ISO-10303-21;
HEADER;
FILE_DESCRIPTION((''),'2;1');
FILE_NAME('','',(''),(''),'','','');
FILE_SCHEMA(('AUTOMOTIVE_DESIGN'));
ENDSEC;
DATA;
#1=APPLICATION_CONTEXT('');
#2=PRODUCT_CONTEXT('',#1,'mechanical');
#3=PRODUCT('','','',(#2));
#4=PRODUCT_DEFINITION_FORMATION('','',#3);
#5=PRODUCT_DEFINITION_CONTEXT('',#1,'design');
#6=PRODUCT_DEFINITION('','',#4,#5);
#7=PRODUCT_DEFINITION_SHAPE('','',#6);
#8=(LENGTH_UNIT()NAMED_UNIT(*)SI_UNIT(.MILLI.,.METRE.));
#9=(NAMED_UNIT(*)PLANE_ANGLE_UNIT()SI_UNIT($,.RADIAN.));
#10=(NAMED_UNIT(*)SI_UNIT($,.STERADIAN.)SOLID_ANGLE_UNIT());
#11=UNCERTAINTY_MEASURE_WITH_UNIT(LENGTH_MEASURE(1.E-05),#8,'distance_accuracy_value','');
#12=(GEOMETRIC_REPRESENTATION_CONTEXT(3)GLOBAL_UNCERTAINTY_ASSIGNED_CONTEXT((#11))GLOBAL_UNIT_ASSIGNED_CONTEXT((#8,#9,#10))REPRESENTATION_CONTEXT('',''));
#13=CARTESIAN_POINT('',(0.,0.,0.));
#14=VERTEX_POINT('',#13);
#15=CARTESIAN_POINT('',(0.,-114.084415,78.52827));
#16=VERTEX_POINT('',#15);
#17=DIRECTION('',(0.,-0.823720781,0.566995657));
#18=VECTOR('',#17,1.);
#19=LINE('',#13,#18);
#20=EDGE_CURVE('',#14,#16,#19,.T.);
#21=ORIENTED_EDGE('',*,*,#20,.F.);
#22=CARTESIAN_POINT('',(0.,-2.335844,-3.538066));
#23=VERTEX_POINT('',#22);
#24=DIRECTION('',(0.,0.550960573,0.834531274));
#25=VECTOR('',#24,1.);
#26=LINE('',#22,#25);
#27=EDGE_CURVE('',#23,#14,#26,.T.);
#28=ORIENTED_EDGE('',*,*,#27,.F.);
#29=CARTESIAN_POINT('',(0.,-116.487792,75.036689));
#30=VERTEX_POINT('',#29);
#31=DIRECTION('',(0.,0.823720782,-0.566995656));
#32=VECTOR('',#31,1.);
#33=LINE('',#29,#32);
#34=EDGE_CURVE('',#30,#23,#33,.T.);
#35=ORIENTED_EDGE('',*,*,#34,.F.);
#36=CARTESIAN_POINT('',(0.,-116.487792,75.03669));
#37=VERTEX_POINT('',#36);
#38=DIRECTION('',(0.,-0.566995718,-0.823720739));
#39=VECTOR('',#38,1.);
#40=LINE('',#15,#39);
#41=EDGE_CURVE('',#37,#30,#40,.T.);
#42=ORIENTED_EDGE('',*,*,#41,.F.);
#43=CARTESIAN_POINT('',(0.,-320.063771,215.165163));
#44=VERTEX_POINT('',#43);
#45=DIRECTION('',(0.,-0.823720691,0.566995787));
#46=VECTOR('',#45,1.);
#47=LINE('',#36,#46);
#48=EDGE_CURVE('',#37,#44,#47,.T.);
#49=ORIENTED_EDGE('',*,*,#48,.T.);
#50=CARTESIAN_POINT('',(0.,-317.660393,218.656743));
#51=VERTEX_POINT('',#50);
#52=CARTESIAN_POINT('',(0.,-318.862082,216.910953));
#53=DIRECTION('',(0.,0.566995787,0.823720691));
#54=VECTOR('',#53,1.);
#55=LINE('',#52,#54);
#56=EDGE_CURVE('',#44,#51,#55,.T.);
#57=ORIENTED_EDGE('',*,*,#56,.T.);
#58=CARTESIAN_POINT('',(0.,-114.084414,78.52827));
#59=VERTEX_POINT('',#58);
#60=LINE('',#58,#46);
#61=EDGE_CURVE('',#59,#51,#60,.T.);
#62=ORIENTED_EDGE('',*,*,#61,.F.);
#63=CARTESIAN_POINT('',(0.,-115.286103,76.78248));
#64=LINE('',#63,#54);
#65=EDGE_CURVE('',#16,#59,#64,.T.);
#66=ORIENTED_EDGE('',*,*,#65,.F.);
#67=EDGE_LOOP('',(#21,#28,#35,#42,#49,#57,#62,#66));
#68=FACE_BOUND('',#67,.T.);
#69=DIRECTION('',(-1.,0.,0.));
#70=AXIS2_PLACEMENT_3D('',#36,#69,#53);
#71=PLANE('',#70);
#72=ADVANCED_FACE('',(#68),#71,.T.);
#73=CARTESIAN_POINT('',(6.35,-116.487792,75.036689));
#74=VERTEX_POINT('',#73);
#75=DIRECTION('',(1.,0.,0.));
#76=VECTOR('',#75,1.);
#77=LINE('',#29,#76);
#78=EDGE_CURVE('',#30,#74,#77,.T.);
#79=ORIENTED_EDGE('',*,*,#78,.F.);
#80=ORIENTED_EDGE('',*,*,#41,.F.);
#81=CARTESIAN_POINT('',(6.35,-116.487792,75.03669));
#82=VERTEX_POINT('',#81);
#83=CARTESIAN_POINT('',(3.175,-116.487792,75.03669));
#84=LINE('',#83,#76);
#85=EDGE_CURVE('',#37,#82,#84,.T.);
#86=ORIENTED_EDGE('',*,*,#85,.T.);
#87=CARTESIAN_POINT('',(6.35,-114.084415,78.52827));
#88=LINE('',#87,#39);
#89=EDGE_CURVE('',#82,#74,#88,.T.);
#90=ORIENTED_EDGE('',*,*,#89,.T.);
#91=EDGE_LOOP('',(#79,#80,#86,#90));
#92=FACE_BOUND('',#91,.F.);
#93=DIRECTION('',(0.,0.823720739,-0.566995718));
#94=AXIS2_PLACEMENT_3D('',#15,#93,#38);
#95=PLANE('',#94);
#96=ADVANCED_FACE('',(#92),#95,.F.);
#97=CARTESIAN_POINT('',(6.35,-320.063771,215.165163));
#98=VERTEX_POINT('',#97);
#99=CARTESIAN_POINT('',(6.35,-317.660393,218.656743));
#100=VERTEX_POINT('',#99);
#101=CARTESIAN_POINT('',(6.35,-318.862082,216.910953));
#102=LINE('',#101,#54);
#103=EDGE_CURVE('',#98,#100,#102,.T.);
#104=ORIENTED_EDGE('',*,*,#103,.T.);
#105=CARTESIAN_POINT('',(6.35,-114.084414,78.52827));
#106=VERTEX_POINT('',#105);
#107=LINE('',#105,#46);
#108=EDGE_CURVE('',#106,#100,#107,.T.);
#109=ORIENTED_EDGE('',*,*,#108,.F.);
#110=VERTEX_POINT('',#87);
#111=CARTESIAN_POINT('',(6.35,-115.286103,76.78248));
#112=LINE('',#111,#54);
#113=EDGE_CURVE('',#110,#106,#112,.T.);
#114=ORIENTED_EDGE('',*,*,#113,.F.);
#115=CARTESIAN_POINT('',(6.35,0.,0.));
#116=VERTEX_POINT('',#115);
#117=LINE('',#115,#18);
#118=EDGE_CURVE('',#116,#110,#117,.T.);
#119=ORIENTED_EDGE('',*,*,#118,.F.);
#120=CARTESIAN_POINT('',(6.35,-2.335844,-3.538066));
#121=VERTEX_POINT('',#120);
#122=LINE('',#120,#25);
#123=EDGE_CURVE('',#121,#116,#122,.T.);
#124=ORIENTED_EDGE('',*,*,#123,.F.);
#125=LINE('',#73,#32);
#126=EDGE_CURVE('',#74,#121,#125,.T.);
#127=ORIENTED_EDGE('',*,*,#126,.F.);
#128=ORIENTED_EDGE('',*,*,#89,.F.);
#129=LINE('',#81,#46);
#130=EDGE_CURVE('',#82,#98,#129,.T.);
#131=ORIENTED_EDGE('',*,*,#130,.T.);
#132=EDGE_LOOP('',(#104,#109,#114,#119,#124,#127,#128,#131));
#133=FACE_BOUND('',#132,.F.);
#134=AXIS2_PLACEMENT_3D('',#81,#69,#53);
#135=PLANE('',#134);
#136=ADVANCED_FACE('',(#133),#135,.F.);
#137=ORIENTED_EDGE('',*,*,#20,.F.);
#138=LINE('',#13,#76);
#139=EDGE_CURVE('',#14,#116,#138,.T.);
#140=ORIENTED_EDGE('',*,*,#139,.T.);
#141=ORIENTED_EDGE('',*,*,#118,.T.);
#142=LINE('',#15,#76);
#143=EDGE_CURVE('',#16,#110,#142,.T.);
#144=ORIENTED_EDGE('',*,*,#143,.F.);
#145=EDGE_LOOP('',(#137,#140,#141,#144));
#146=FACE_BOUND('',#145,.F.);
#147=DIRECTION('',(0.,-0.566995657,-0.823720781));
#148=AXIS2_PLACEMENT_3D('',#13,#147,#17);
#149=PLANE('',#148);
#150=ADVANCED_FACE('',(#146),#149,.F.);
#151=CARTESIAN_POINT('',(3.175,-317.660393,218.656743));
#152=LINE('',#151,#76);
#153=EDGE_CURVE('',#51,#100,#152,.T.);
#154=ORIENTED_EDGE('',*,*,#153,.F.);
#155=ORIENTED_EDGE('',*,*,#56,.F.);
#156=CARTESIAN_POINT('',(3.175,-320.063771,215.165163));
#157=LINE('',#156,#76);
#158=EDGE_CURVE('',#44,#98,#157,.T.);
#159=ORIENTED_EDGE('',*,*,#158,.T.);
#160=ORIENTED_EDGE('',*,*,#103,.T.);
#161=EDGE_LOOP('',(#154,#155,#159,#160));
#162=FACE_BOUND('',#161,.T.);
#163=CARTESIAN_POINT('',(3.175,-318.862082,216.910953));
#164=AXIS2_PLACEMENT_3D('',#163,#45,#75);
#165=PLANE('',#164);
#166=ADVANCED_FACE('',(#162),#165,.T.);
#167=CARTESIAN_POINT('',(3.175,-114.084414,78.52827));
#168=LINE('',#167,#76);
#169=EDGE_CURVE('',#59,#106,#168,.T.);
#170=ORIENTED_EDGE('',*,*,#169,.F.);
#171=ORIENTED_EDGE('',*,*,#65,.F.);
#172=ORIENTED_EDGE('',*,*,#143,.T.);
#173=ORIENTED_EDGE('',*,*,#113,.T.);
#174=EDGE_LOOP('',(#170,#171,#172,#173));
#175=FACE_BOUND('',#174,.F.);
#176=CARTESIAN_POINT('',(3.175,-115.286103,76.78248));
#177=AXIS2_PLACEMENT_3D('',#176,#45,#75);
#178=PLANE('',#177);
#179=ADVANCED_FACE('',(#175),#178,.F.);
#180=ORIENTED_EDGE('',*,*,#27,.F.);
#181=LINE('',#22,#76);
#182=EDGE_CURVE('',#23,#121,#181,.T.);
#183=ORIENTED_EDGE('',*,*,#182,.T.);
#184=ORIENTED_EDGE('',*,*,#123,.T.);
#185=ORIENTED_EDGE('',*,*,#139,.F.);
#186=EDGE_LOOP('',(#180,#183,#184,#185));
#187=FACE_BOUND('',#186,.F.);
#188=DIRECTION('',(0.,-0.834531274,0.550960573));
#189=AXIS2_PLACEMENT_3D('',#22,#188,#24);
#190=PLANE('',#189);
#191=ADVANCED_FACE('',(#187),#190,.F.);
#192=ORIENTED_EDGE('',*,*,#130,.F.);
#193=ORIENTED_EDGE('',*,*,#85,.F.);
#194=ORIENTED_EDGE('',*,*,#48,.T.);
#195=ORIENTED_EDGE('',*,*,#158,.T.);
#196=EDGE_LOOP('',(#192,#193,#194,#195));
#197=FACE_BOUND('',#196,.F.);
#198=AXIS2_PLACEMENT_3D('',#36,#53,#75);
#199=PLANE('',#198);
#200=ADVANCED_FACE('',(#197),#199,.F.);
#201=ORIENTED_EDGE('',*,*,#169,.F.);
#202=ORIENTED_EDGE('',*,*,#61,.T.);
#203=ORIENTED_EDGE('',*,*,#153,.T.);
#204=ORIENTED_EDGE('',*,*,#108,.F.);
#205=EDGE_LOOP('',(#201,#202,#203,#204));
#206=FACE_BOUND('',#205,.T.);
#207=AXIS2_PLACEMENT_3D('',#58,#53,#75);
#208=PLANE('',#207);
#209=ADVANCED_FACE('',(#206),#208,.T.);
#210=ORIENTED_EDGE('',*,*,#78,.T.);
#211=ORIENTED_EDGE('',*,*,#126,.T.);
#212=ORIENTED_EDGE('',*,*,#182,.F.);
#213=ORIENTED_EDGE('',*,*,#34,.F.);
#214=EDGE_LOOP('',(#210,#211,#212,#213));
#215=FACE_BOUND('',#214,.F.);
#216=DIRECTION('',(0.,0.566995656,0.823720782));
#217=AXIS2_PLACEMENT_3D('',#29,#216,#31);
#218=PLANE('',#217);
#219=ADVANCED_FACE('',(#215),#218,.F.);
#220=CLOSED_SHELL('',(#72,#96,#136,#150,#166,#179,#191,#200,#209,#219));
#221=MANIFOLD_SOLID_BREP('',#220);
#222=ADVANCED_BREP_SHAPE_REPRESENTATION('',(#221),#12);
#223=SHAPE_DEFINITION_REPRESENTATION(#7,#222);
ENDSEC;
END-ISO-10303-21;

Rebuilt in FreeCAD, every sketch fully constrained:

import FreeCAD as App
import Part
import Sketcher
Q = App.Units.Quantity

doc = App.newDocument("Part")
body = doc.addObject("PartDesign::Body", "Body")

# Sketch on YZ plane
sketch1 = body.newObject("Sketcher::SketchObject", "Sketch")
sketch1.AttachmentSupport = (doc.getObject("YZ_Plane"), [""])
sketch1.MapMode = "FlatFace"
sketch1.addGeometry([
    Part.LineSegment(App.Vector(-2.335844, -3.538066, 0), App.Vector(0, 0, 0)),
    Part.LineSegment(App.Vector(0, 0, 0), App.Vector(-114.084415, 78.52827, 0)),
    Part.LineSegment(App.Vector(-114.084415, 78.52827, 0), App.Vector(-116.487792, 75.036689, 0)),
    Part.LineSegment(App.Vector(-116.487792, 75.036689, 0), App.Vector(-2.335844, -3.538066, 0)),
], False)
sketch1.addConstraint([
    Sketcher.Constraint("Coincident", 0, 2, 1, 1),
    Sketcher.Constraint("Coincident", 1, 2, 2, 1),
    Sketcher.Constraint("Coincident", 2, 2, 3, 1),
    Sketcher.Constraint("Coincident", 3, 2, 0, 1),
    Sketcher.Constraint("Coincident", 0, 2, -1, 1),
    Sketcher.Constraint("Perpendicular", 1, 2),
    Sketcher.Constraint("Perpendicular", 2, 3),
    Sketcher.Constraint("Distance", 1, 138.498891),
    Sketcher.Constraint("DistanceY", -1, 1, 1, 2, 78.52827),
    Sketcher.Constraint("DistanceX", 2, 2, -1, 1, 116.487792),
    Sketcher.Constraint("DistanceX", 2, 2, 3, 2, 114.151948),
])
pad1 = body.newObject("PartDesign::Pad", "Pad")
pad1.Profile = sketch1
pad1.Length = Q("0.25 in")

# Sketch on an angled plane
sketch2 = body.newObject("Sketcher::SketchObject", "Sketch001")
sketch2.Placement = App.Placement(App.Vector(3.175, -115.286103, 76.78248), App.Rotation(App.Vector(1, 0, 0), App.Vector(0, 0.566995787, 0.823720691), App.Vector(0, -0.823720691, 0.566995787), "ZXY"))
sketch2.addGeometry([
    Part.LineSegment(App.Vector(-3.175, 2.119396, 0), App.Vector(-3.175, -2.119396, 0)),
    Part.LineSegment(App.Vector(-3.175, -2.119396, 0), App.Vector(3.175, -2.119396, 0)),
    Part.LineSegment(App.Vector(3.175, -2.119396, 0), App.Vector(3.175, 2.119396, 0)),
    Part.LineSegment(App.Vector(3.175, 2.119396, 0), App.Vector(-3.175, 2.119396, 0)),
], False)
sketch2.addConstraint([
    Sketcher.Constraint("Coincident", 0, 2, 1, 1),
    Sketcher.Constraint("Coincident", 1, 2, 2, 1),
    Sketcher.Constraint("Coincident", 2, 2, 3, 1),
    Sketcher.Constraint("Coincident", 3, 2, 0, 1),
    Sketcher.Constraint("Vertical", 0),
    Sketcher.Constraint("Horizontal", 1),
    Sketcher.Constraint("Vertical", 2),
    Sketcher.Constraint("Horizontal", 3),
    Sketcher.Constraint("Symmetric", 0, 2, 2, 2, -1, 1),
    Sketcher.Constraint("DistanceX", 1, 1, 1, 2, Q("0.25 in")),
    Sketcher.Constraint("DistanceY", 0, 2, 0, 1, 4.238792),
])
pad2 = body.newObject("PartDesign::Pad", "Pad001")
pad2.Profile = sketch2
pad2.Length = Q("9.73 in")

doc.recompute()
